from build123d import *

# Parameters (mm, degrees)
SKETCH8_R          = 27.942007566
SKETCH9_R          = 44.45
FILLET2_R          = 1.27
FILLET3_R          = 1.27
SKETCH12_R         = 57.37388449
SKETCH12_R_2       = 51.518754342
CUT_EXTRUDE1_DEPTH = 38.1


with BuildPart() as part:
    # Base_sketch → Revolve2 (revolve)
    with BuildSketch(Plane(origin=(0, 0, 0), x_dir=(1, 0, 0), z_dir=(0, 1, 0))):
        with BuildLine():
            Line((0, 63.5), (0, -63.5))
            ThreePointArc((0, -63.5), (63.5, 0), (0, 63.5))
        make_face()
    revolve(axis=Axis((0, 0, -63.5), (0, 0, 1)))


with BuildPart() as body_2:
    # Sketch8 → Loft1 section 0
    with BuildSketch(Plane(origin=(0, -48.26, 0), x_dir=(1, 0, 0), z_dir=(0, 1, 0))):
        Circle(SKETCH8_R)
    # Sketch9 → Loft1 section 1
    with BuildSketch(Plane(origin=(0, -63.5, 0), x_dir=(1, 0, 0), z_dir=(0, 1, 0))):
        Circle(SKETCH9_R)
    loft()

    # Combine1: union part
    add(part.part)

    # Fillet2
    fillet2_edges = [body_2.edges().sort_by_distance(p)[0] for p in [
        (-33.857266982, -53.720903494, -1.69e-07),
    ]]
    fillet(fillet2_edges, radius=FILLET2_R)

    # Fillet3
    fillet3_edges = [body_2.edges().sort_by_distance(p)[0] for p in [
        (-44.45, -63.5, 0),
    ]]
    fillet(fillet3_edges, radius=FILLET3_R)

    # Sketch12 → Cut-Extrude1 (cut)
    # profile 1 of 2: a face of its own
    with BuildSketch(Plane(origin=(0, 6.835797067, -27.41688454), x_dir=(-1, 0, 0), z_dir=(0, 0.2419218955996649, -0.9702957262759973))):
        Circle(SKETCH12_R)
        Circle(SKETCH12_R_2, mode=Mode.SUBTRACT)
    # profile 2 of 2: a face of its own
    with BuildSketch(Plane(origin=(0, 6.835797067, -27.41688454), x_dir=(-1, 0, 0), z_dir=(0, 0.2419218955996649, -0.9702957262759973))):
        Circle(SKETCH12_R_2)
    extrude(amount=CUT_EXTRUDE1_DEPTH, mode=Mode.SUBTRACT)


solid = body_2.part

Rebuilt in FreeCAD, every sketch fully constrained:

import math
import FreeCAD as App
import Part
import Sketcher

V = App.Vector
Q = App.Units.Quantity


def edges_at(feature, points):
    """Names of the edges that pass closest to the given points."""
    edges = feature.Shape.Edges
    near = lambda p: min(range(len(edges)), key=lambda i: edges[i].distToShape(Part.Vertex(*p))[0])
    return sorted({f"Edge{near(p) + 1}" for p in points})

doc = App.newDocument("Part")
params = doc.addObject("Spreadsheet::Sheet", "Params")
for row, (alias, value) in enumerate([
    ("sketch1_radius", "2.5 in"),
    ("revolution_angle", "360 deg"),
    ("sketch3_diameter", "3.5 in"),
    ("fillet_radius", "0.05 in"),
    ("fillet2_radius", "0.05 in"),
    ("pocket1_length", "1.5 in"),
], start=1):
    params.set(f"A{row}", alias)
    params.set(f"B{row}", "=" + value)
    params.setAlias(f"B{row}", alias)

body = doc.addObject("PartDesign::Body", "Body")

sketch1 = body.newObject("Sketcher::SketchObject", "Sketch")
sketch1.AttachmentSupport = (doc.getObject("XZ_Plane"), [""])
sketch1.MapMode = "FlatFace"
sketch1.addGeometry([
    Part.LineSegment(V(0, -64, 0), V(0, 64, 0)),
    Part.ArcOfCircle(Part.Circle(V(0, 0, 0), V(0, 0, 1), 64), math.radians(-90), math.radians(90)),
], False)
sketch1.addConstraint([
    Sketcher.Constraint("Coincident", 0, 1, 1, 1),
    Sketcher.Constraint("Coincident", 1, 2, 0, 2),
    Sketcher.Constraint("Vertical", 0),
    Sketcher.Constraint("Coincident", 1, 3, -1, 1),
    Sketcher.Constraint("PointOnObject", 0, 1, -2),
    Sketcher.Constraint("Radius", 1, Q("2.5 in")),
])
sketch1.setExpression("Constraints[5]", "Params.sketch1_radius")
revolution = body.newObject("PartDesign::Revolution", "Revolution")
revolution.Profile = sketch1
revolution.ReferenceAxis = (sketch1, ["V_Axis"])
revolution.setExpression("Angle", "Params.revolution_angle")
body2 = doc.addObject("PartDesign::Body", "Body001")

sketch2 = body2.newObject("Sketcher::SketchObject", "Sketch001")
sketch2.AttachmentSupport = (doc.getObject("XZ_Plane001"), [""])
sketch2.MapMode = "FlatFace"
sketch2.AttachmentOffset = App.Placement(V(0, 0, 1.9 * 25.4), App.Rotation())
sketch2.addGeometry(Part.Circle(V(0, 0, 0), V(0, 0, 1), 28), False)
sketch2.addConstraint([
    Sketcher.Constraint("Coincident", 0, 3, -1, 1),
    Sketcher.Constraint("Diameter", 0, 55.884015),
])

sketch3 = body2.newObject("Sketcher::SketchObject", "Sketch002")
sketch3.AttachmentSupport = (doc.getObject("XZ_Plane001"), [""])
sketch3.MapMode = "FlatFace"
sketch3.AttachmentOffset = App.Placement(V(0, 0, 2.5 * 25.4), App.Rotation())
sketch3.addGeometry(Part.Circle(V(0, 0, 0), V(0, 0, 1), 44), False)
sketch3.addConstraint([
    Sketcher.Constraint("Coincident", 0, 3, -1, 1),
    Sketcher.Constraint("Diameter", 0, Q("3.5 in")),
])
sketch3.setExpression("Constraints[1]", "Params.sketch3_diameter")

additiveloft = body2.newObject("PartDesign::AdditiveLoft", "AdditiveLoft")
additiveloft.Profile = sketch2
additiveloft.Sections = [sketch3]
doc.recompute()

boolean = body2.newObject("PartDesign::Boolean", "Boolean")
boolean.Type = "Fuse"
boolean.addObjects([body])
doc.recompute()

fillet = body2.newObject("PartDesign::Fillet", "Fillet")
fillet.Base = (boolean, edges_at(boolean, [(-33.857, -53.721, 0)]))
fillet.setExpression("Radius", "Params.fillet_radius")
doc.recompute()

fillet2 = body2.newObject("PartDesign::Fillet", "Fillet001")
fillet2.Base = (fillet, edges_at(fillet, [(-44.45, -63.5, 0)]))
fillet2.setExpression("Radius", "Params.fillet2_radius")

sketch4 = body2.newObject("Sketcher::SketchObject", "Sketch003")
sketch4.Placement = App.Placement(V(0, 6.835797, -27.416885), App.Rotation(V(-1, 0, 0), V(0, 0.970295726, 0.241921896), V(0, 0.241921896, -0.970295726), "ZXY"))
sketch4.addGeometry(Part.Circle(V(0, 0, 0), V(0, 0, 1), 57), False)
sketch4.addConstraint([
    Sketcher.Constraint("Coincident", 0, 3, -1, 1),
    Sketcher.Constraint("Diameter", 0, 114.747769),
])
pocket1 = body2.newObject("PartDesign::Pocket", "Pocket")
pocket1.Profile = sketch4
pocket1.setExpression("Length", "Params.pocket1_length")
pocket1.Reversed = True

doc.recompute()
